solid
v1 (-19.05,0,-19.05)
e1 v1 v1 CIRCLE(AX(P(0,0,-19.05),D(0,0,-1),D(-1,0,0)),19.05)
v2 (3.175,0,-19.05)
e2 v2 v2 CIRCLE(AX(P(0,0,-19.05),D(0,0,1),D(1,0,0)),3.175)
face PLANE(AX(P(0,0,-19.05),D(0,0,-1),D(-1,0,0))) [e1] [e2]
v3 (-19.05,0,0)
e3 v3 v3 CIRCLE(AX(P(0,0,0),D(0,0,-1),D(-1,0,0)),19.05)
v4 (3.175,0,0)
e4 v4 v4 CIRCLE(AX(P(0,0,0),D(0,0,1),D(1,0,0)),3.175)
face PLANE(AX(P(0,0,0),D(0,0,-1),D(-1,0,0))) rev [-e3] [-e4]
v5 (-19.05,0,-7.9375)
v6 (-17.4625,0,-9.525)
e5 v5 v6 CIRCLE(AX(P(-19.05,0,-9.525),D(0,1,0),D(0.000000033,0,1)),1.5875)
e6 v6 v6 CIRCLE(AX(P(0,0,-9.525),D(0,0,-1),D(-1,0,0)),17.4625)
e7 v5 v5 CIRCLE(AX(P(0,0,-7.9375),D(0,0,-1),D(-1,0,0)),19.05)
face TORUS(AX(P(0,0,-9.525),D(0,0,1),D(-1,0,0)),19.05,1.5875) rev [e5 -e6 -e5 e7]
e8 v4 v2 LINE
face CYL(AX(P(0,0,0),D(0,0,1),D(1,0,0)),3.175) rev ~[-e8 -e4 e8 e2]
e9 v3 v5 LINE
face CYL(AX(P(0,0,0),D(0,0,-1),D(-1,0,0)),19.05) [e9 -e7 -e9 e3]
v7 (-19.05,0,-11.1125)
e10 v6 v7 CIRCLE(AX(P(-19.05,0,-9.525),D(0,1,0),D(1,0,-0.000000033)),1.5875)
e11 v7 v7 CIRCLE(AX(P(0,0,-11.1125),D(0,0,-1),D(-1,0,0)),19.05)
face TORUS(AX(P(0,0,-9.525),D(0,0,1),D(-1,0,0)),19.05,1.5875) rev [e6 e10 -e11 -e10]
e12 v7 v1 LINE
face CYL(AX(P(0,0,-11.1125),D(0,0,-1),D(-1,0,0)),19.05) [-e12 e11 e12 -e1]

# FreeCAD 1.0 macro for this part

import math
import FreeCAD as App
import Part
import Sketcher
from FreeCAD import Vector
Q = App.Units.Quantity

doc = App.newDocument("Part")
body = doc.addObject("PartDesign::Body", "Body")

sketch1 = body.newObject("Sketcher::SketchObject", "Sketch")
sketch1.AttachmentSupport = (doc.getObject("XZ_Plane"), [""])
sketch1.MapMode = "FlatFace"
sketch1.addGeometry(Part.LineSegment(Vector(0, -19.1, 0), Vector(0, 0, 0)), False)
sketch1.addGeometry(Part.LineSegment(Vector(0, 0, 0), Vector(-19.1, 0, 0)), False)
sketch1.addGeometry(Part.LineSegment(Vector(-19.1, 0, 0), Vector(-19.1, -7.9, 0)), False)
sketch1.addGeometry(Part.ArcOfCircle(Part.Circle(Vector(-19.1, -9.5, 0), Vector(0, 0, 1), 1.6), math.radians(0), math.radians(90)), False)
sketch1.addGeometry(Part.ArcOfCircle(Part.Circle(Vector(-19.1, -9.5, 0), Vector(0, 0, 1), 1.6), math.radians(-90), math.radians(0)), False)
sketch1.addGeometry(Part.LineSegment(Vector(-19.1, -11.1, 0), Vector(-19.1, -19.1, 0)), False)
sketch1.addGeometry(Part.LineSegment(Vector(-19.1, -19.1, 0), Vector(0, -19.1, 0)), False)
sketch1.addConstraint(Sketcher.Constraint("Coincident", 0, 2, 1, 1))
sketch1.addConstraint(Sketcher.Constraint("Coincident", 1, 2, 2, 1))
sketch1.addConstraint(Sketcher.Constraint("Coincident", 2, 2, 3, 2))
sketch1.addConstraint(Sketcher.Constraint("Tangent", 3, 1, 4, 2))
sketch1.addConstraint(Sketcher.Constraint("Coincident", 4, 1, 5, 1))
sketch1.addConstraint(Sketcher.Constraint("Coincident", 5, 2, 6, 1))
sketch1.addConstraint(Sketcher.Constraint("Coincident", 6, 2, 0, 1))
sketch1.addConstraint(Sketcher.Constraint("Vertical", 0))
sketch1.addConstraint(Sketcher.Constraint("Horizontal", 1))
sketch1.addConstraint(Sketcher.Constraint("Vertical", 2))
sketch1.addConstraint(Sketcher.Constraint("Vertical", 5))
sketch1.addConstraint(Sketcher.Constraint("Horizontal", 6))
sketch1.addConstraint(Sketcher.Constraint("Coincident", 0, 2, -1, 1))
sketch1.addConstraint(Sketcher.Constraint("Equal", 3, 4))
sketch1.addConstraint(Sketcher.Constraint("Horizontal", 4, 3, 3, 1))
sketch1.addConstraint(Sketcher.Constraint("Vertical", 4, 3, 1, 2))
sketch1.addConstraint(Sketcher.Constraint("Vertical", 2, 2, 4, 1))
sketch1.addConstraint(Sketcher.Constraint("Equal", 6, 0))
sketch1.addConstraint(Sketcher.Constraint("Equal", 2, 5))
sketch1.addConstraint(Sketcher.Constraint("Radius", 3, Q("0.0625 in")))
sketch1.addConstraint(Sketcher.Constraint("DistanceX", 1, 2, 1, 1, Q("0.75 in")))
revolution = body.newObject("PartDesign::Revolution", "Revolution")
revolution.Profile = sketch1
revolution.ReferenceAxis = (sketch1, ["V_Axis"])
revolution.Angle = 360

sketch2 = body.newObject("Sketcher::SketchObject", "Sketch001")
sketch2.AttachmentSupport = (doc.getObject("XY_Plane"), [""])
sketch2.MapMode = "FlatFace"
sketch2.addGeometry(Part.Circle(Vector(0, 0, 0), Vector(0, 0, 1), 3.2), False)
sketch2.addConstraint(Sketcher.Constraint("Coincident", 0, 3, -1, 1))
sketch2.addConstraint(Sketcher.Constraint("Diameter", 0, Q("0.25 in")))
pocket1 = body.newObject("PartDesign::Pocket", "Pocket")
pocket1.Profile = sketch2
pocket1.Length = Q("1 in")

doc.recompute()
